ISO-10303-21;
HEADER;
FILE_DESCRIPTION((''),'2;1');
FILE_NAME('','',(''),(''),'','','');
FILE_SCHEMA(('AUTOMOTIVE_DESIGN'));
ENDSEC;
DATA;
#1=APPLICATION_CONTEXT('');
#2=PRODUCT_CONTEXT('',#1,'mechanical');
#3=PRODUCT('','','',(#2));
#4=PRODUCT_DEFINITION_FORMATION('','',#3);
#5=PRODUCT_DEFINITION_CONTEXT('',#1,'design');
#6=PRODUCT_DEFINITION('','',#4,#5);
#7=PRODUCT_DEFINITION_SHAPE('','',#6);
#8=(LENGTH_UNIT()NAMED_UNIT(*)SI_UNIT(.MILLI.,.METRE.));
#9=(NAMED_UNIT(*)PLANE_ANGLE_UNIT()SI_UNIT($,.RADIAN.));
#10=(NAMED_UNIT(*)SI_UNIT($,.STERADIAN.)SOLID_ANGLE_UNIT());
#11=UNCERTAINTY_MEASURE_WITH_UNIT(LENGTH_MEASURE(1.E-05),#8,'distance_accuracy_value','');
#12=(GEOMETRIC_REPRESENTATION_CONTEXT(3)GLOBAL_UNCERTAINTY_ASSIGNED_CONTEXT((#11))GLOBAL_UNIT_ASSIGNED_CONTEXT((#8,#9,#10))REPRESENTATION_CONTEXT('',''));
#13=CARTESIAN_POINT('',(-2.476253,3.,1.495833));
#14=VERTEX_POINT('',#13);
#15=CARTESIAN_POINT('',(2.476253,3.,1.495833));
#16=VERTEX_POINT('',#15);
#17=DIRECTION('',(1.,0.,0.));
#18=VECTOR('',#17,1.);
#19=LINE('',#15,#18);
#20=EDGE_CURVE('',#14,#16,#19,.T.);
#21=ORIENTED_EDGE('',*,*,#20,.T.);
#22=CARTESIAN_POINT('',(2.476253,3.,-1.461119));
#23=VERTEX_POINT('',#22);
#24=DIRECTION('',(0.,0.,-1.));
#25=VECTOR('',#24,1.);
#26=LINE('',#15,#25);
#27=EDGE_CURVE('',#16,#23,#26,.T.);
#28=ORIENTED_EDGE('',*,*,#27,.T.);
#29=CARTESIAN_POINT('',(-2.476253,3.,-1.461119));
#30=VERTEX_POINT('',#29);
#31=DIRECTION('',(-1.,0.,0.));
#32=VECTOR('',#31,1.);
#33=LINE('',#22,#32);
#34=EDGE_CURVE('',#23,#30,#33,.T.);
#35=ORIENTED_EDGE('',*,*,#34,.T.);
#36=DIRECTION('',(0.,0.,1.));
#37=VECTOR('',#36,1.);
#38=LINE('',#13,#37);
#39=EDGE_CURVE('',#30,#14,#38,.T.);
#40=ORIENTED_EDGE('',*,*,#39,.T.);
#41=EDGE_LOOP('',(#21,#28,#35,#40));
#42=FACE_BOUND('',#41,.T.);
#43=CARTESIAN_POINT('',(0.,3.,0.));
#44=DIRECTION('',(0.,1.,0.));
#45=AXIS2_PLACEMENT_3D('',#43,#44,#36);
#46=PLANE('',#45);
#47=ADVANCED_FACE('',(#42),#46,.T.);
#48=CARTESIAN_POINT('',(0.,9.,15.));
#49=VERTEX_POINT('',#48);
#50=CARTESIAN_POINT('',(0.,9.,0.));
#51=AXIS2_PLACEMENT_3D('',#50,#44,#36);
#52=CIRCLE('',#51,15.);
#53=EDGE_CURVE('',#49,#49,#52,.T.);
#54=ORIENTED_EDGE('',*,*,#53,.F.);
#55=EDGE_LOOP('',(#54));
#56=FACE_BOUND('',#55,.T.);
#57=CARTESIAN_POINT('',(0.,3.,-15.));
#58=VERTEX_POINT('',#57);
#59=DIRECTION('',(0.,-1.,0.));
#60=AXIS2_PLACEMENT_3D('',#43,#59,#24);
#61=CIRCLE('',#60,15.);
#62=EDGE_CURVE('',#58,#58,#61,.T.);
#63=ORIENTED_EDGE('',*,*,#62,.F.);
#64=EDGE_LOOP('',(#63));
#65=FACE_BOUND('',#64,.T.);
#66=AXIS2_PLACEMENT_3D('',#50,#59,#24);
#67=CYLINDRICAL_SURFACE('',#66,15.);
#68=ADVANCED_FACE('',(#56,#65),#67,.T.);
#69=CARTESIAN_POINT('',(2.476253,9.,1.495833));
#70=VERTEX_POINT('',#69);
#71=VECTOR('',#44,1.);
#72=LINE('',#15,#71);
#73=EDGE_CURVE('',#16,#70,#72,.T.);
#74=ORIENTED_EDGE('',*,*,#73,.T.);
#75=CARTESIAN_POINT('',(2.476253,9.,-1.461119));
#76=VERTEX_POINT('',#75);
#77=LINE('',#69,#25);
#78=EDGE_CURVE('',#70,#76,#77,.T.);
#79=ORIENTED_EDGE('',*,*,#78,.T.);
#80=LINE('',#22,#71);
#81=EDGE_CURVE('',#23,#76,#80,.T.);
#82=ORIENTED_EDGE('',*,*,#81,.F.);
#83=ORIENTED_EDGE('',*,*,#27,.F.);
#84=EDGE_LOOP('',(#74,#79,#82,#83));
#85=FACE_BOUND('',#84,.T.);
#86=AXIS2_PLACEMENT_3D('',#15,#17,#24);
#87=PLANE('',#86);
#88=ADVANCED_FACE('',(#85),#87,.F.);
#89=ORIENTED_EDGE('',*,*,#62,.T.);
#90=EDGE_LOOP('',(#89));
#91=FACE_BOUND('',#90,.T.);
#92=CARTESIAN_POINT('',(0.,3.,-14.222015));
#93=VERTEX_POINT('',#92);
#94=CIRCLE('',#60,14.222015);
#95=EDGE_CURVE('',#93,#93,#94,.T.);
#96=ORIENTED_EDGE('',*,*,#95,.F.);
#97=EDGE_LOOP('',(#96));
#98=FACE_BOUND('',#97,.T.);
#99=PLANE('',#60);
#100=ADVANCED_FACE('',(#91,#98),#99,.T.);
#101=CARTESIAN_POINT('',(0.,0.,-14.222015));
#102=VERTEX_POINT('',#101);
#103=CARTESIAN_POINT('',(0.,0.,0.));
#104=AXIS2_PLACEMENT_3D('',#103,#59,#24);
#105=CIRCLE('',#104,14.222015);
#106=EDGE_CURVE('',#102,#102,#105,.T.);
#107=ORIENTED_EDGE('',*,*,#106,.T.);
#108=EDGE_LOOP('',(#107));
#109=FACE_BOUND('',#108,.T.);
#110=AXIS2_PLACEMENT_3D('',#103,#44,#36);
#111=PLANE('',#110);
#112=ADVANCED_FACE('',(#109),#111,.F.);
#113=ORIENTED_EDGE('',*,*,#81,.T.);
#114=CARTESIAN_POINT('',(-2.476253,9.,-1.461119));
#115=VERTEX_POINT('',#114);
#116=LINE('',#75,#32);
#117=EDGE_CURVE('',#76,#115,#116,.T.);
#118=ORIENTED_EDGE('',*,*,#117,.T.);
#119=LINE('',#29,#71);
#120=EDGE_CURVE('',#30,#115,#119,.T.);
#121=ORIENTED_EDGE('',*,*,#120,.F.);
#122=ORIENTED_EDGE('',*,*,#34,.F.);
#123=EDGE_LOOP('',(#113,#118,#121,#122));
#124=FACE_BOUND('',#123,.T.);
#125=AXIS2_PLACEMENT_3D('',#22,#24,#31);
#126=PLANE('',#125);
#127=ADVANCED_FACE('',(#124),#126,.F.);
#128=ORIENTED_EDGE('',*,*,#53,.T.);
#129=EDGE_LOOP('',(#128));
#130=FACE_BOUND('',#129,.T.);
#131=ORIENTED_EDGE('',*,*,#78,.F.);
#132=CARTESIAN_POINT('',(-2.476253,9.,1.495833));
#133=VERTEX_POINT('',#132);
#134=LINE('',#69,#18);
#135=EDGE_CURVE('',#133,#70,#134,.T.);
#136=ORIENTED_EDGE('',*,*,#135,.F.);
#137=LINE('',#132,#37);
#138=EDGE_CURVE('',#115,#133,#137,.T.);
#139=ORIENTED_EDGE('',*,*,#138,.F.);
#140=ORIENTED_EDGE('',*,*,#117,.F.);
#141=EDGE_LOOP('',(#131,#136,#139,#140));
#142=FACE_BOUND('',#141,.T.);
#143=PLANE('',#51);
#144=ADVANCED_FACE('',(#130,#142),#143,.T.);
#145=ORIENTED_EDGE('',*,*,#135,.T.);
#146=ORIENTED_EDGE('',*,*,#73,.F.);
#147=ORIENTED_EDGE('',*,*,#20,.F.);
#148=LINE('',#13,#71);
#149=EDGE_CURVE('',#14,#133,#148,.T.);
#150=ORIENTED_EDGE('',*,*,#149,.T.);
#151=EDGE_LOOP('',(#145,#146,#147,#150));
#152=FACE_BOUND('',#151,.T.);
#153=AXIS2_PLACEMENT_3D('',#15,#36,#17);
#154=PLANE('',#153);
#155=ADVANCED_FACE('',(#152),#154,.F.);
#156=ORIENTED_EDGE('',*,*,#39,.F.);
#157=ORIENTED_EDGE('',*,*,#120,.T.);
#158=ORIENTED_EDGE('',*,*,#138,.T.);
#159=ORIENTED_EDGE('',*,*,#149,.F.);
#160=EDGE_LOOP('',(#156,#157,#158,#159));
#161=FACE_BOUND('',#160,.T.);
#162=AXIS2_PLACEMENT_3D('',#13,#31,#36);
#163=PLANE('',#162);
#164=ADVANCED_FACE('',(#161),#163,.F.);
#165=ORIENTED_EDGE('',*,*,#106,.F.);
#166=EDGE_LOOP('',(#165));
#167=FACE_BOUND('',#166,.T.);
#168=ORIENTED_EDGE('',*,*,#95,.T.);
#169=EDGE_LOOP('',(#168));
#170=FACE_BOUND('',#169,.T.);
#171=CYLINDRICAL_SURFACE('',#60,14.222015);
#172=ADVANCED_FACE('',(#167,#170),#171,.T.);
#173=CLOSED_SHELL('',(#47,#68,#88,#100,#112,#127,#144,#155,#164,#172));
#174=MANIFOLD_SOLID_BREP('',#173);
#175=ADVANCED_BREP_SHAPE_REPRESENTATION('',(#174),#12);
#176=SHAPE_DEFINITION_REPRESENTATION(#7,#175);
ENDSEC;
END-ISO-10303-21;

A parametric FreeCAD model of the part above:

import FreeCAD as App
import Part
import Sketcher

doc = App.newDocument("Part")
body = doc.addObject("PartDesign::Body", "Body")

sketch1 = body.newObject("Sketcher::SketchObject", "Sketch")
sketch1.AttachmentSupport = (doc.getObject("XZ_Plane"), [""])
sketch1.MapMode = "FlatFace"
sketch1.addGeometry(Part.Circle(App.Vector(0, 0, 0), App.Vector(0, 0, 1), 15), False)
sketch1.addConstraint([
    Sketcher.Constraint("Coincident", 0, 3, -1, 1),
    Sketcher.Constraint("Diameter", 0, 30.0),
])
pad1 = body.newObject("PartDesign::Pad", "Pad")
pad1.Profile = sketch1
pad1.Length = 9
pad1.Reversed = True

sketch2 = body.newObject("Sketcher::SketchObject", "Sketch001")
sketch2.AttachmentSupport = (doc.getObject("XZ_Plane"), [""])
sketch2.MapMode = "FlatFace"
sketch2.addGeometry([
    Part.LineSegment(App.Vector(-20, 20, 0), App.Vector(-20, -20, 0)),
    Part.LineSegment(App.Vector(-20, -20, 0), App.Vector(20, -20, 0)),
    Part.LineSegment(App.Vector(20, -20, 0), App.Vector(20, 20, 0)),
    Part.LineSegment(App.Vector(20, 20, 0), App.Vector(-20, 20, 0)),
    Part.Circle(App.Vector(0, 0, 0), App.Vector(0, 0, 1), 14),
], False)
sketch2.addConstraint([
    Sketcher.Constraint("Coincident", 0, 2, 1, 1),
    Sketcher.Constraint("Coincident", 1, 2, 2, 1),
    Sketcher.Constraint("Coincident", 2, 2, 3, 1),
    Sketcher.Constraint("Coincident", 3, 2, 0, 1),
    Sketcher.Constraint("Vertical", 0),
    Sketcher.Constraint("Horizontal", 1),
    Sketcher.Constraint("Vertical", 2),
    Sketcher.Constraint("Horizontal", 3),
    Sketcher.Constraint("Coincident", 4, 3, -1, 1),
    Sketcher.Constraint("Symmetric", 0, 2, 2, 2, -1, 1),
    Sketcher.Constraint("Equal", 3, 0),
    Sketcher.Constraint("Diameter", 4, 28.444031),
    Sketcher.Constraint("DistanceX", 1, 1, 1, 2, 40.674),
])
pocket1 = body.newObject("PartDesign::Pocket", "Pocket")
pocket1.Profile = sketch2
pocket1.Length = 3

sketch3 = body.newObject("Sketcher::SketchObject", "Sketch002")
sketch3.AttachmentSupport = (doc.getObject("XZ_Plane"), [""])
sketch3.MapMode = "FlatFace"
sketch3.AttachmentOffset = App.Placement(App.Vector(0, 0, -9), App.Rotation())
sketch3.addGeometry([
    Part.LineSegment(App.Vector(-2.5, -1.5, 0), App.Vector(-2.5, 1.5, 0)),
    Part.LineSegment(App.Vector(-2.5, 1.5, 0), App.Vector(2.5, 1.5, 0)),
    Part.LineSegment(App.Vector(2.5, 1.5, 0), App.Vector(2.5, -1.5, 0)),
    Part.LineSegment(App.Vector(2.5, -1.5, 0), App.Vector(-2.5, -1.5, 0)),
], False)
sketch3.addConstraint([
    Sketcher.Constraint("Coincident", 0, 2, 1, 1),
    Sketcher.Constraint("Coincident", 1, 2, 2, 1),
    Sketcher.Constraint("Coincident", 2, 2, 3, 1),
    Sketcher.Constraint("Coincident", 3, 2, 0, 1),
    Sketcher.Constraint("Vertical", 0),
    Sketcher.Constraint("Horizontal", 1),
    Sketcher.Constraint("Vertical", 2),
    Sketcher.Constraint("Horizontal", 3),
    Sketcher.Constraint("DistanceY", 0, 1, 0, 2, 2.956952),
    Sketcher.Constraint("DistanceX", 1, 1, 1, 2, 4.952507),
    Sketcher.Constraint("DistanceY", 2, 2, -1, 1, 1.461119),
    Sketcher.Constraint("DistanceX", 0, 2, -1, 1, 2.476253),
])
pocket2 = body.newObject("PartDesign::Pocket", "Pocket001")
pocket2.Profile = sketch3
pocket2.Length = 6
pocket2.Reversed = True

doc.recompute()
